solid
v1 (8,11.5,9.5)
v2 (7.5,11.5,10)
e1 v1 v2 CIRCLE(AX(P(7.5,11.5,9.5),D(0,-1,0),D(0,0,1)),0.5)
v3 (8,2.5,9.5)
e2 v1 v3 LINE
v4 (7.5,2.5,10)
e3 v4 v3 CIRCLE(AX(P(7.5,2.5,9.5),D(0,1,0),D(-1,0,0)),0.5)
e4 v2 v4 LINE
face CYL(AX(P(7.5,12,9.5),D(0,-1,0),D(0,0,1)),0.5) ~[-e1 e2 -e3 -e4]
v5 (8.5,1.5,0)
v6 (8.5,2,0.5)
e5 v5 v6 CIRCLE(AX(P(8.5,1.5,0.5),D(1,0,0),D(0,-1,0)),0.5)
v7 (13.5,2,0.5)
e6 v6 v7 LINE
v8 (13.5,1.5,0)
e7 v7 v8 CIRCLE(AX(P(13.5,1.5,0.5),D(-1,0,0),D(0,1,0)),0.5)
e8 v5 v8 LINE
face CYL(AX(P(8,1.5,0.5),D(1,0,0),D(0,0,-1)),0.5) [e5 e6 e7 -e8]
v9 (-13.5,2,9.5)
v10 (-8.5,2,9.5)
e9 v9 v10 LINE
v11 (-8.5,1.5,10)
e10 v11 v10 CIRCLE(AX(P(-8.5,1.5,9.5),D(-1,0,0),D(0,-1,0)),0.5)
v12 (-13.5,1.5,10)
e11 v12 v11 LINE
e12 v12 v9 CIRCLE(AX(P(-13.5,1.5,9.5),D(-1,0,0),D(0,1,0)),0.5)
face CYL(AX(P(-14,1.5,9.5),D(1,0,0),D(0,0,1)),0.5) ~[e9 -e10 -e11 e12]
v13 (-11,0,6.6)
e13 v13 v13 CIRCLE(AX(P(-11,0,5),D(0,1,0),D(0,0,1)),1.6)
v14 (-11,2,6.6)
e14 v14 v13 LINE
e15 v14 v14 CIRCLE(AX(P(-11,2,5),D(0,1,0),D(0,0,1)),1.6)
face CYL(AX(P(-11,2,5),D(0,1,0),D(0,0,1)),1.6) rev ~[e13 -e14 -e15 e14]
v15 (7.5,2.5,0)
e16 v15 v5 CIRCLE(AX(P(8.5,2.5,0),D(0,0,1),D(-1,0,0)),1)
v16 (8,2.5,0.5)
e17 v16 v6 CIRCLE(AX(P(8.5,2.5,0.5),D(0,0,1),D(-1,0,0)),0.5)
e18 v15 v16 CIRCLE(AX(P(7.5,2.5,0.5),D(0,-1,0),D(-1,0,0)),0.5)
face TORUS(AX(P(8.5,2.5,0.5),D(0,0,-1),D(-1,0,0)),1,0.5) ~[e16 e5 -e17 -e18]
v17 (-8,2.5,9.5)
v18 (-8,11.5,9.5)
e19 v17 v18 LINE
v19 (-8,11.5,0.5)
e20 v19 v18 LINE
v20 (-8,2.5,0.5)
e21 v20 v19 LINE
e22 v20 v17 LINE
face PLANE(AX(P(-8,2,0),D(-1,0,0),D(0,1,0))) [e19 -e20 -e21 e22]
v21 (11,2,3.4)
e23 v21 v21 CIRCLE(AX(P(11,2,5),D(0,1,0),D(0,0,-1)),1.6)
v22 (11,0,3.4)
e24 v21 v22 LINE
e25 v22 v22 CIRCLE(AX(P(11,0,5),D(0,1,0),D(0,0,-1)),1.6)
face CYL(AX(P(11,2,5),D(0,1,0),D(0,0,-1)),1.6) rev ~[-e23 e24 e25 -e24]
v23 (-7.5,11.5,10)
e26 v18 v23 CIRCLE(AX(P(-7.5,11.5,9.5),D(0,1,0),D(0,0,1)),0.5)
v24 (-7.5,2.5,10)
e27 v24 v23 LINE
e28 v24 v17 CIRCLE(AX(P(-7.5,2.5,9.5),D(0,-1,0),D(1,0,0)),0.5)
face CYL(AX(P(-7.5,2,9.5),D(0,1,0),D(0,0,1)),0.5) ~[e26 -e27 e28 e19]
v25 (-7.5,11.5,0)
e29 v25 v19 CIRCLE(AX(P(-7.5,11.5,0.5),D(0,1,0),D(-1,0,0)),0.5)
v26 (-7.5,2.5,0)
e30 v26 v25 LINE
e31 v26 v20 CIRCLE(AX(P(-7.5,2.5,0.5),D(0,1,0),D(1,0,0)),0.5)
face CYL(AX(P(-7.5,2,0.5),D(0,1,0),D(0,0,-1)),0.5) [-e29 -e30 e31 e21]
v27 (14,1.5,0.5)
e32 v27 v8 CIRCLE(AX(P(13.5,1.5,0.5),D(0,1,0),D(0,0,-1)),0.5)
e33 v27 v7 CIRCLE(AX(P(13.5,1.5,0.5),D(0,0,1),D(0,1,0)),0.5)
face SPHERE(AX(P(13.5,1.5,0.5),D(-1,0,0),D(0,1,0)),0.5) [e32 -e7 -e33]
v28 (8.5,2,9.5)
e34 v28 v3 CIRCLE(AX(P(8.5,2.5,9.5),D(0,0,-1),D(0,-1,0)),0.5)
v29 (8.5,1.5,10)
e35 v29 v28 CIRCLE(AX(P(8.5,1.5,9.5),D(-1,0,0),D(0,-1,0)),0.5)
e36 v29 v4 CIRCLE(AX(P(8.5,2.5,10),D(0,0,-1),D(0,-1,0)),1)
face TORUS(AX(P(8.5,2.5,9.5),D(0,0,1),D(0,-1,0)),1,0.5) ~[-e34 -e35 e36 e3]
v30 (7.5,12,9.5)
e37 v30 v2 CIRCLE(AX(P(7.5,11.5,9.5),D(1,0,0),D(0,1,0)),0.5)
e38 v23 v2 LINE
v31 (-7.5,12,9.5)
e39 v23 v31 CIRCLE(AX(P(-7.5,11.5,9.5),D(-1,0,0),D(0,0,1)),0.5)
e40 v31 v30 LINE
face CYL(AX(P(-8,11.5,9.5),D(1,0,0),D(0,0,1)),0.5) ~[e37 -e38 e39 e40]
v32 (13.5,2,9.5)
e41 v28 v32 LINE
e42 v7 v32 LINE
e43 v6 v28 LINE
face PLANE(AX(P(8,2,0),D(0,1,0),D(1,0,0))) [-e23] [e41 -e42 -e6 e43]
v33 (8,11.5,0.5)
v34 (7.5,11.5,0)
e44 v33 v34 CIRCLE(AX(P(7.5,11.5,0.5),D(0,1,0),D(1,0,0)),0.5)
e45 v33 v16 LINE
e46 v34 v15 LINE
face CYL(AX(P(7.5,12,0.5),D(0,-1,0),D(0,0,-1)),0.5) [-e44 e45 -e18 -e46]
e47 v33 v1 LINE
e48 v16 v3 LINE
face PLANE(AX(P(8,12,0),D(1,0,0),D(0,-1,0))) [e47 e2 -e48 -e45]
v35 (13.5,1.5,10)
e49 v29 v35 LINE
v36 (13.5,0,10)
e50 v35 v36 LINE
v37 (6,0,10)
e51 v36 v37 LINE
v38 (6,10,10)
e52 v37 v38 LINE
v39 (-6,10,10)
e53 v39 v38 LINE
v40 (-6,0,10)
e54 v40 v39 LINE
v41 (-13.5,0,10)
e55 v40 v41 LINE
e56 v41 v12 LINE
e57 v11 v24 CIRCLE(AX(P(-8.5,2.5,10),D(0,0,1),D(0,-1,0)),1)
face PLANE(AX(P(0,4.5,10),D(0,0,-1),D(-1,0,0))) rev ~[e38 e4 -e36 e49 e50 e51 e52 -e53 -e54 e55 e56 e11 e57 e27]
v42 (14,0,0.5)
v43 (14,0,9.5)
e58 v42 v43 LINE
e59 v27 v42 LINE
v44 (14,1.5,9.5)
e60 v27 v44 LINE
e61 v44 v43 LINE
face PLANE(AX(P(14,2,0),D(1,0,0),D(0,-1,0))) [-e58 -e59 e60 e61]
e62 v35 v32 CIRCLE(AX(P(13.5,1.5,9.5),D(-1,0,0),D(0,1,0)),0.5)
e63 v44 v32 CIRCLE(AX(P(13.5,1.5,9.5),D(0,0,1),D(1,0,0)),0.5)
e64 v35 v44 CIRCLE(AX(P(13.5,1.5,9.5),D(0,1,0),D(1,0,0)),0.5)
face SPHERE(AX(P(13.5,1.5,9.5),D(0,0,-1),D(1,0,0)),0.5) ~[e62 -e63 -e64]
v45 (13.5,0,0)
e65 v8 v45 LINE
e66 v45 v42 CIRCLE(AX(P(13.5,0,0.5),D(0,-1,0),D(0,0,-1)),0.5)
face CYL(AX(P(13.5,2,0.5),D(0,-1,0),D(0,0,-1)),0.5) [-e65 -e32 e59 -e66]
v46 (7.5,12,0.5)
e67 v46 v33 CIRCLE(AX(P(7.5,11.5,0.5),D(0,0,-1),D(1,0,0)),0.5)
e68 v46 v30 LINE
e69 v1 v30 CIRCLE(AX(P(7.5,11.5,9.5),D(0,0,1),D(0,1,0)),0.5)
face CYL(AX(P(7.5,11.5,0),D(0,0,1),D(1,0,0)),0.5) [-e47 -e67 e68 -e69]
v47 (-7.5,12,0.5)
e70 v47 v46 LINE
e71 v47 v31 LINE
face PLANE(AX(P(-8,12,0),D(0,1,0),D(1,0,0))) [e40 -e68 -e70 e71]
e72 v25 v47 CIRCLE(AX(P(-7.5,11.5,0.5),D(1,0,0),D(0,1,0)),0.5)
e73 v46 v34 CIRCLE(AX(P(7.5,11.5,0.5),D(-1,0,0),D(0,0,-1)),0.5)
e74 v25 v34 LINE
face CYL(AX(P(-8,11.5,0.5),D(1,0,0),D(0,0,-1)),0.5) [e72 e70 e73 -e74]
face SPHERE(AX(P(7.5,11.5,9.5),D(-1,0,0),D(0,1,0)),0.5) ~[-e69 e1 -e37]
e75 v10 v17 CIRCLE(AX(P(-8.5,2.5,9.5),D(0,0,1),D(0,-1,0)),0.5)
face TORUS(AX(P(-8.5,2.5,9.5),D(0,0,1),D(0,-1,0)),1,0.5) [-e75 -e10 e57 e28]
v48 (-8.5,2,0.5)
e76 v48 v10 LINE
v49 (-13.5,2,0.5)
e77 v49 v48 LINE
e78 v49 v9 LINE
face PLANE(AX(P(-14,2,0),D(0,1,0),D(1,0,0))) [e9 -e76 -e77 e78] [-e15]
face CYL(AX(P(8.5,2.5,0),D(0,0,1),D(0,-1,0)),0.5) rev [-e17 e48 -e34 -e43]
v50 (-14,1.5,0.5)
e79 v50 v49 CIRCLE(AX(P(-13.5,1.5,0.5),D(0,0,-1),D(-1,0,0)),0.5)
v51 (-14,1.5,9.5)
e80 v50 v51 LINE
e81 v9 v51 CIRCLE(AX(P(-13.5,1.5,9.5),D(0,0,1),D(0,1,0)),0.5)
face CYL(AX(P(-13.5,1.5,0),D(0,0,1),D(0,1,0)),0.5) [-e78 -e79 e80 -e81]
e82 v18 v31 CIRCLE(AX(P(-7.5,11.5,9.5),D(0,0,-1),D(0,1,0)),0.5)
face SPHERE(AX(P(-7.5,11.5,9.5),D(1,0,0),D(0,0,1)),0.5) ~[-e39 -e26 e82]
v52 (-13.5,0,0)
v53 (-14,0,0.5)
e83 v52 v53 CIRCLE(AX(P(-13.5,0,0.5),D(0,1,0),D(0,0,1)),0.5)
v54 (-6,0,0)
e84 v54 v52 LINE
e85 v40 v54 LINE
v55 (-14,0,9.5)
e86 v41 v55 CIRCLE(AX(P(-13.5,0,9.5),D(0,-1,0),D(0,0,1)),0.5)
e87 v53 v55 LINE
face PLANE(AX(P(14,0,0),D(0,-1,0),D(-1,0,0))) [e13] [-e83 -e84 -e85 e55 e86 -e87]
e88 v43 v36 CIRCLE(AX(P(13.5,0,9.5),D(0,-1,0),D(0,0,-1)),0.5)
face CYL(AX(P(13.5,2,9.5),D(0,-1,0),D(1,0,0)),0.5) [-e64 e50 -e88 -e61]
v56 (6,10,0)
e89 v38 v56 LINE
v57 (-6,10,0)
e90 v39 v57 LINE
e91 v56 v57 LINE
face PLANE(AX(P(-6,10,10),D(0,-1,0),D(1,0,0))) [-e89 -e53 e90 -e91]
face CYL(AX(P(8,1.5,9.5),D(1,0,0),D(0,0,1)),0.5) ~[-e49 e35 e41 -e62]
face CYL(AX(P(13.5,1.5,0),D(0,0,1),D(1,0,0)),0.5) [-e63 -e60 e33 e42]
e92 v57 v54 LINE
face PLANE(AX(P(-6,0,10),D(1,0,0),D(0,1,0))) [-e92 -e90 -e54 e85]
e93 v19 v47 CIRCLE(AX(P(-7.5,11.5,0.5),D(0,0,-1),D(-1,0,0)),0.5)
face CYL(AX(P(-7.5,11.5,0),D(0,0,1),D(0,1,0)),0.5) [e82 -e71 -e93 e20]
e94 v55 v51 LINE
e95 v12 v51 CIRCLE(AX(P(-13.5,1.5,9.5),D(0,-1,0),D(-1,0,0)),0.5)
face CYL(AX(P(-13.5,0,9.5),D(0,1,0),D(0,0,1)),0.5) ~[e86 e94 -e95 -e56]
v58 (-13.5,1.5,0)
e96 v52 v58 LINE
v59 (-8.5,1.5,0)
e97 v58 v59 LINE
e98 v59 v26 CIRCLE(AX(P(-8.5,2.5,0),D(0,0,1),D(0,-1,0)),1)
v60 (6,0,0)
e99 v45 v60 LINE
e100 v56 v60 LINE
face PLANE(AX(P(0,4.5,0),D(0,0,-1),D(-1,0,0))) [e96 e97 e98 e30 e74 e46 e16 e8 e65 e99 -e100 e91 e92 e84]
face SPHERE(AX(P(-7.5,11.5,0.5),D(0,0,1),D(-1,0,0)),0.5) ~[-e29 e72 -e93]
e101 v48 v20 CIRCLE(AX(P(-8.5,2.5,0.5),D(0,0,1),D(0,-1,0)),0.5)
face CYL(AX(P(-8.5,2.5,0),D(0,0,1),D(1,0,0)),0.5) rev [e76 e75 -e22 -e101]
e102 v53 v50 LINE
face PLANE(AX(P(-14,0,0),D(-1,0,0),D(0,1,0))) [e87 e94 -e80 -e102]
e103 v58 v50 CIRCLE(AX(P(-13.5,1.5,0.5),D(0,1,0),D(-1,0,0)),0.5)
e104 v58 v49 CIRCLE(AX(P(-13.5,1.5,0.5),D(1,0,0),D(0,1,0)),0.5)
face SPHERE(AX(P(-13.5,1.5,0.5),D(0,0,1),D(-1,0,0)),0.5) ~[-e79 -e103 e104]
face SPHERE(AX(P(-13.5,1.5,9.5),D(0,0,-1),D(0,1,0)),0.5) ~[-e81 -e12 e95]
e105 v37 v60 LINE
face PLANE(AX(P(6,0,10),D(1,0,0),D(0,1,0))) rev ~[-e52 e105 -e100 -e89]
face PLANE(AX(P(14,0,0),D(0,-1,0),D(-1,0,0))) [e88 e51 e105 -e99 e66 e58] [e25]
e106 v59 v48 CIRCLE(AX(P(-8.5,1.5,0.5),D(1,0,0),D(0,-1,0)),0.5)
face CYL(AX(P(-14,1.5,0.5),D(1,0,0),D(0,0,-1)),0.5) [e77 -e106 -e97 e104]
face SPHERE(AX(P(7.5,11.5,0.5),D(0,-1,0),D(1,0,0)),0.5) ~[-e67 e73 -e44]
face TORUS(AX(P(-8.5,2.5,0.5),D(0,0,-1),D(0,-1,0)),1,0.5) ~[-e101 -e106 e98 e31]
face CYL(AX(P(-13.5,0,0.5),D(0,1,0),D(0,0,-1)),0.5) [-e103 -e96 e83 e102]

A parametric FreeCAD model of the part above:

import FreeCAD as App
import Part
import Sketcher
from FreeCAD import Vector
Q = App.Units.Quantity


def edges_at(feature, points):
    """Names of the edges that pass closest to the given points."""
    edges = feature.Shape.Edges
    near = lambda p: min(range(len(edges)), key=lambda i: edges[i].distToShape(Part.Vertex(*p))[0])
    return sorted({f"Edge{near(p) + 1}" for p in points})

doc = App.newDocument("Part")
body = doc.addObject("PartDesign::Body", "Body")

# Sketch on XY plane
sketch1 = doc.addObject("Sketcher::SketchObject", "Sketch")
body.addObject(sketch1)
sketch1.AttachmentSupport = (doc.XY_Plane, [""])
sketch1.MapMode = "FlatFace"
sketch1.addGeometry([
    Part.LineSegment(Vector(-14, 0, 0), Vector(14, 0, 0)),  # 0
    Part.LineSegment(Vector(14, 0, 0), Vector(14, 2, 0)),  # 1
    Part.LineSegment(Vector(14, 2, 0), Vector(8, 2, 0)),  # 2
    Part.LineSegment(Vector(8, 2, 0), Vector(8, 12, 0)),  # 3
    Part.LineSegment(Vector(8, 12, 0), Vector(-8, 12, 0)),  # 4
    Part.LineSegment(Vector(-8, 12, 0), Vector(-8, 2, 0)),  # 5
    Part.LineSegment(Vector(-8, 2, 0), Vector(-14, 2, 0)),  # 6
    Part.LineSegment(Vector(-14, 2, 0), Vector(-14, 0, 0)),  # 7
], False)
sketch1.addConstraint([
    Sketcher.Constraint("Coincident", 0, 2, 1, 1),
    Sketcher.Constraint("Coincident", 1, 2, 2, 1),
    Sketcher.Constraint("Coincident", 2, 2, 3, 1),
    Sketcher.Constraint("Coincident", 3, 2, 4, 1),
    Sketcher.Constraint("Coincident", 4, 2, 5, 1),
    Sketcher.Constraint("Coincident", 5, 2, 6, 1),
    Sketcher.Constraint("Coincident", 6, 2, 7, 1),
    Sketcher.Constraint("Coincident", 7, 2, 0, 1),
    Sketcher.Constraint("Horizontal", 0),
    Sketcher.Constraint("Vertical", 1),
    Sketcher.Constraint("Horizontal", 2),
    Sketcher.Constraint("Vertical", 3),
    Sketcher.Constraint("Horizontal", 4),
    Sketcher.Constraint("Vertical", 5),
    Sketcher.Constraint("Horizontal", 6),
    Sketcher.Constraint("Vertical", 7),
    Sketcher.Constraint("Symmetric", 0, 2, 7, 2, -1, 1),
    Sketcher.Constraint("Symmetric", 2, 2, 5, 2, -2),
    Sketcher.Constraint("DistanceX", 0, 1, 0, 2, Q("28 mm")),
    Sketcher.Constraint("DistanceX", 2, 2, 2, 1, Q("6 mm")),
    Sketcher.Constraint("DistanceY", 1, 1, 1, 2, Q("2 mm")),
    Sketcher.Constraint("DistanceY", 3, 1, 3, 2, Q("10 mm")),
])
pad1 = doc.addObject("PartDesign::Pad", "Pad")
body.addObject(pad1)
pad1.Profile = sketch1
pad1.Length = 10

# Sketch on XY plane
sketch2 = doc.addObject("Sketcher::SketchObject", "Sketch001")
body.addObject(sketch2)
sketch2.AttachmentSupport = (doc.XY_Plane, [""])
sketch2.MapMode = "FlatFace"
sketch2.AttachmentOffset = App.Placement(Vector(0, 0, 10), App.Rotation())
sketch2.addGeometry([
    Part.LineSegment(Vector(-6, 10, 0), Vector(-6, 0, 0)),
    Part.LineSegment(Vector(-6, 0, 0), Vector(6, 0, 0)),
    Part.LineSegment(Vector(6, 0, 0), Vector(6, 10, 0)),
    Part.LineSegment(Vector(6, 10, 0), Vector(-6, 10, 0)),
], False)
sketch2.addConstraint([
    Sketcher.Constraint("Coincident", 0, 2, 1, 1),
    Sketcher.Constraint("Coincident", 1, 2, 2, 1),
    Sketcher.Constraint("Coincident", 2, 2, 3, 1),
    Sketcher.Constraint("Coincident", 3, 2, 0, 1),
    Sketcher.Constraint("Vertical", 0),
    Sketcher.Constraint("Horizontal", 1),
    Sketcher.Constraint("Vertical", 2),
    Sketcher.Constraint("Horizontal", 3),
    Sketcher.Constraint("Symmetric", 0, 2, 1, 2, -1, 1),
    Sketcher.Constraint("DistanceX", 1, 1, 1, 2, Q("12 mm")),
    Sketcher.Constraint("DistanceY", 0, 2, 0, 1, Q("10 mm")),
])
pocket1 = doc.addObject("PartDesign::Pocket", "Pocket")
body.addObject(pocket1)
pocket1.Profile = sketch2
pocket1.Type = "ThroughAll"

# Sketch on XZ plane
sketch3 = doc.addObject("Sketcher::SketchObject", "Sketch002")
body.addObject(sketch3)
sketch3.AttachmentSupport = (doc.XZ_Plane, [""])
sketch3.MapMode = "FlatFace"
sketch3.AttachmentOffset = App.Placement(Vector(0, 0, -2), App.Rotation())
sketch3.addGeometry([
    Part.Circle(Vector(-11, 5, 0), Vector(0, 0, 1), 1.6),
    Part.Circle(Vector(11, 5, 0), Vector(0, 0, 1), 1.6),
], False)
sketch3.addConstraint([
    Sketcher.Constraint("Equal", 0, 1),
    Sketcher.Constraint("Symmetric", 0, 3, 1, 3, -2),
    Sketcher.Constraint("Diameter", 0, Q("3.2 mm")),
    Sketcher.Constraint("DistanceX", 0, 3, -1, 1, Q("11 mm")),
    Sketcher.Constraint("DistanceY", -1, 1, 0, 3, Q("5 mm")),
])
pocket2 = doc.addObject("PartDesign::Pocket", "Pocket001")
body.addObject(pocket2)
pocket2.Profile = sketch3
pocket2.Type = "ThroughAll"
pocket2.Reversed = True
doc.recompute()

fillet = doc.addObject("PartDesign::Fillet", "Fillet")
body.addObject(fillet)
fillet.Base = (pocket2, edges_at(pocket2, [
    (0, 12, 10),
    (8, 7, 0),
    (11, 2, 0),
    (-8, 7, 10),
    (14, 2, 5),
    (-14, 2, 5),
    (-8, 2, 5),
    (-8, 12, 5),
    (8, 12, 5),
    (8, 2, 5),
    (-11, 2, 10),
    (-14, 1, 10),
    (14, 1, 10),
    (11, 2, 10),
    (8, 7, 10),
    (14, 1, 0),
    (-14, 1, 0),
    (-11, 2, 0),
    (-8, 7, 0),
    (0, 12, 0),
]))
fillet.Radius = 0.5

doc.recompute()
